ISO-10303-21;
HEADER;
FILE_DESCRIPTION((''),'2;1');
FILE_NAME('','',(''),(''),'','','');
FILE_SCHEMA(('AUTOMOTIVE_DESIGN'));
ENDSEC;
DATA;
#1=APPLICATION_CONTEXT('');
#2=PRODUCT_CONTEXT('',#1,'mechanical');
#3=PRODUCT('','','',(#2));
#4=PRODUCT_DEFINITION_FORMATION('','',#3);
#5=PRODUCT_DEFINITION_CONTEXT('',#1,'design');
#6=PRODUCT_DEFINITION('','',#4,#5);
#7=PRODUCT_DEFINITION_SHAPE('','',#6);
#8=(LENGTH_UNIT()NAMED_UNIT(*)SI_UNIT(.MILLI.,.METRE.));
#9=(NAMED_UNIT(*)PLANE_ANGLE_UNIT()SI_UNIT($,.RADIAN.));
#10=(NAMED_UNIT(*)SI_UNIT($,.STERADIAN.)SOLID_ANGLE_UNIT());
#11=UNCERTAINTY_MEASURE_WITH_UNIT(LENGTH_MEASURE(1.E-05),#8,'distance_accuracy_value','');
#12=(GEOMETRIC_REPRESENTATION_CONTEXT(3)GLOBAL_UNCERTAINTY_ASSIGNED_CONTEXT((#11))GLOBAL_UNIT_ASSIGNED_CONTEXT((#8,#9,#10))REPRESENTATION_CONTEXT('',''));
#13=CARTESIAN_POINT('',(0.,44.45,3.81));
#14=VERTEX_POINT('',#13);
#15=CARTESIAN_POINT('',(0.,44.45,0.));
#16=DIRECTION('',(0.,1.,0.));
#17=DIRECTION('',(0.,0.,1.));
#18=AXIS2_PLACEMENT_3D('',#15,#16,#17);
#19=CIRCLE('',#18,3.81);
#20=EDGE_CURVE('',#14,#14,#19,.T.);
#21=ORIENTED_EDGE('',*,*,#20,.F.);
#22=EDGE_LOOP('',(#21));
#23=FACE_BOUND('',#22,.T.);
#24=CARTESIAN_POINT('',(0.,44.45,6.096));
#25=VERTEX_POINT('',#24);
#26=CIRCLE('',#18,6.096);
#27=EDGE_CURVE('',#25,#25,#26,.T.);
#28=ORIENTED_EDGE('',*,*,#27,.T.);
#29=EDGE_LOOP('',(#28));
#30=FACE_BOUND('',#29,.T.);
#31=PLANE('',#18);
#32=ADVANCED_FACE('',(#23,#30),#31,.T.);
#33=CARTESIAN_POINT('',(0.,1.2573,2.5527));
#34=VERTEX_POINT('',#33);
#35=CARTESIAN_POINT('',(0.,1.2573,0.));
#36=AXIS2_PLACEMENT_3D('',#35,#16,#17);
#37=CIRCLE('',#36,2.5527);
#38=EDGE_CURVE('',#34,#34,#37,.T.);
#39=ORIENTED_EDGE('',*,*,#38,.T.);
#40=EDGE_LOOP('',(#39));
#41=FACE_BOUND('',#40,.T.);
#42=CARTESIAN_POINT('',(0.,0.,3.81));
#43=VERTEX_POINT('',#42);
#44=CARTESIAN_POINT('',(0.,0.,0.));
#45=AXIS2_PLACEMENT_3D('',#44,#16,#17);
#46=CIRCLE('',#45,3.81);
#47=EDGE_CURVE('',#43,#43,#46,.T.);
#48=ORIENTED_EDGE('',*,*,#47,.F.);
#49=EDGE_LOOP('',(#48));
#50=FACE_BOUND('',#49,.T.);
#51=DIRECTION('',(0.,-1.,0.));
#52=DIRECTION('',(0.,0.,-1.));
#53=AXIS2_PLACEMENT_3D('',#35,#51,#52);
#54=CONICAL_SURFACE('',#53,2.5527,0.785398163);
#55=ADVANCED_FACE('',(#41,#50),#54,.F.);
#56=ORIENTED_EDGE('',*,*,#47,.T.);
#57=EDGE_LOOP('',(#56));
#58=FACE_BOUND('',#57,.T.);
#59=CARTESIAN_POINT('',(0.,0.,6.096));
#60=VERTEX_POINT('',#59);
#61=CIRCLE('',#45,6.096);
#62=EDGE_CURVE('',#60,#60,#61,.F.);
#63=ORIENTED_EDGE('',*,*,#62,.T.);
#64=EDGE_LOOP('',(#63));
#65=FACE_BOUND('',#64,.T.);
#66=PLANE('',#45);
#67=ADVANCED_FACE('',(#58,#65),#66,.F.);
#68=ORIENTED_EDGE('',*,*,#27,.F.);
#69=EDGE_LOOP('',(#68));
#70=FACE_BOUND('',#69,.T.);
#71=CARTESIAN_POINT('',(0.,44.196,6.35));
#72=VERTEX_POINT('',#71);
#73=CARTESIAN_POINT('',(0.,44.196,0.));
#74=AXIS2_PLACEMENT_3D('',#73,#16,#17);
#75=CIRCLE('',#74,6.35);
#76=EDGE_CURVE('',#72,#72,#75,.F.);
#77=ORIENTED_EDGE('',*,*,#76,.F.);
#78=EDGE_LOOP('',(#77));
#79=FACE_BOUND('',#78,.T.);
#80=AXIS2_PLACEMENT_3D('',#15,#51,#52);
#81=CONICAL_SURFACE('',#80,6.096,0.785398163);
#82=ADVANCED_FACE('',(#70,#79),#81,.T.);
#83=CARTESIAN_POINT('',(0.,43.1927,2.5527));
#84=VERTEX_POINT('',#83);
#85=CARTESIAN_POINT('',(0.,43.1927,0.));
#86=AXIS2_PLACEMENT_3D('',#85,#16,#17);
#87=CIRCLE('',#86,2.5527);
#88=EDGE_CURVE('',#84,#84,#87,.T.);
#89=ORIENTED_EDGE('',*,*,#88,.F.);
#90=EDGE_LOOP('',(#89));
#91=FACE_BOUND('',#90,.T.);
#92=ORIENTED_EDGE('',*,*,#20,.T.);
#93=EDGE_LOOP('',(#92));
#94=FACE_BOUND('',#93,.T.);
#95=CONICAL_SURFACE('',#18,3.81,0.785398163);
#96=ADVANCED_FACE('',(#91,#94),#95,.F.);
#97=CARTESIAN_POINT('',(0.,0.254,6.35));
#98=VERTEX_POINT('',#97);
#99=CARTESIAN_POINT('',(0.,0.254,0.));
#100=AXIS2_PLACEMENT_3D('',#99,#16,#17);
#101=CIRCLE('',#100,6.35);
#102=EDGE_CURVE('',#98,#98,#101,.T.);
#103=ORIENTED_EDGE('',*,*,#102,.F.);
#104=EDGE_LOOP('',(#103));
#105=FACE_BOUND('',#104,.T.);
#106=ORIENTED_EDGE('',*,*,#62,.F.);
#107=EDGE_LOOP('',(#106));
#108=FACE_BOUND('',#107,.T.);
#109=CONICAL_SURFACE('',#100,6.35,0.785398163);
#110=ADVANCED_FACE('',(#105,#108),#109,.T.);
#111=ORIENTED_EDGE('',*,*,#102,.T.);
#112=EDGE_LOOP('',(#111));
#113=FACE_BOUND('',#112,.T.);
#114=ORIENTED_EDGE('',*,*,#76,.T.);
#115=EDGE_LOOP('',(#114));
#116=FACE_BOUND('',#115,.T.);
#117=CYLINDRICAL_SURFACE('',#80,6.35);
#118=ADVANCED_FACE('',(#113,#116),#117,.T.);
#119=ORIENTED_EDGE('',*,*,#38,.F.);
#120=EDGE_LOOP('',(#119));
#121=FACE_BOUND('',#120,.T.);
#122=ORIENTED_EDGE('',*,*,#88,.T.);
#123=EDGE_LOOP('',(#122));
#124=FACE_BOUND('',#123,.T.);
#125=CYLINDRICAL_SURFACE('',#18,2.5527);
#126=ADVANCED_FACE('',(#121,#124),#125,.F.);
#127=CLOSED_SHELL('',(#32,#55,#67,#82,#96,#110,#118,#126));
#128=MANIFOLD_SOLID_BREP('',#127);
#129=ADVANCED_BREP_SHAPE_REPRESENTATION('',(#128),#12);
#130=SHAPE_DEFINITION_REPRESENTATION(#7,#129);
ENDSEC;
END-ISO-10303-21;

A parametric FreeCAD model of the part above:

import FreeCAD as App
import Part
import Sketcher
from FreeCAD import Vector
Q = App.Units.Quantity


def edges_at(feature, points):
    """Names of the edges that pass closest to the given points."""
    edges = feature.Shape.Edges
    near = lambda p: min(range(len(edges)), key=lambda i: edges[i].distToShape(Part.Vertex(*p))[0])
    return sorted({f"Edge{near(p) + 1}" for p in points})


def add_polygon(sketch, points):
    """Adds a closed chain of lines whose ends are joined by coincident constraints."""
    first, n = sketch.GeometryCount, len(points)
    for a, b in zip(points, points[1:] + points[:1]):
        sketch.addGeometry(Part.LineSegment(App.Vector(*a, 0), App.Vector(*b, 0)), False)
    for i in range(n):
        sketch.addConstraint(Sketcher.Constraint("Coincident", first + i, 2, first + (i + 1) % n, 1))

doc = App.newDocument("Part")
body = doc.addObject("PartDesign::Body", "Body")

sketch1 = doc.addObject("Sketcher::SketchObject", "Sketch")
body.addObject(sketch1)
sketch1.AttachmentSupport = (doc.XZ_Plane, [""])
sketch1.MapMode = "FlatFace"
sketch1.addGeometry(Part.Circle(Vector(0, 0, 0), Vector(0, 0, 1), 6.35), False)
sketch1.addConstraint(Sketcher.Constraint("Coincident", 0, 3, -1, 1))
sketch1.addConstraint(Sketcher.Constraint("Diameter", 0, Q("0.5 in")))
pad1 = doc.addObject("PartDesign::Pad", "Pad")
body.addObject(pad1)
pad1.Profile = sketch1
pad1.Length = Q("1.75 in")
pad1.Reversed = True

sketch2 = doc.addObject("Sketcher::SketchObject", "Sketch001")
body.addObject(sketch2)
sketch2.AttachmentSupport = (doc.YZ_Plane, [""])
sketch2.MapMode = "FlatFace"
add_polygon(sketch2, [(0, 0), (44.45, 0), (44.45, 3.81), (43.1927, 2.5527), (1.2573, 2.5527), (0, 3.81)])
sketch2.addConstraint(Sketcher.Constraint("Horizontal", 0))
sketch2.addConstraint(Sketcher.Constraint("Vertical", 1))
sketch2.addConstraint(Sketcher.Constraint("Horizontal", 3))
sketch2.addConstraint(Sketcher.Constraint("Vertical", 5))
sketch2.addConstraint(Sketcher.Constraint("Coincident", 5, 2, -1, 1))
sketch2.addConstraint(Sketcher.Constraint("Perpendicular", 2, 4))
sketch2.addConstraint(Sketcher.Constraint("Horizontal", 1, 2, 4, 2))
sketch2.addConstraint(Sketcher.Constraint("Equal", 2, 4))
sketch2.addConstraint(Sketcher.Constraint("DistanceX", 0, 1, 0, 2, Q("1.75 in")))
sketch2.addConstraint(Sketcher.Constraint("DistanceY", 1, 1, 1, 2, Q("0.15 in")))
sketch2.addConstraint(Sketcher.Constraint("DistanceX", 3, 2, 3, 1, Q("1.651 in")))
groove = doc.addObject("PartDesign::Groove", "Groove")
body.addObject(groove)
groove.Profile = sketch2
groove.ReferenceAxis = (sketch2, ["H_Axis"])
groove.Angle = 360
doc.recompute()

chamfer = doc.addObject("PartDesign::Chamfer", "Chamfer")
body.addObject(chamfer)
chamfer.Base = (groove, edges_at(groove, [(0, 0, -6.35), (0, 44.45, -6.35)]))
chamfer.Size = Q("0.01 in")

doc.recompute()
